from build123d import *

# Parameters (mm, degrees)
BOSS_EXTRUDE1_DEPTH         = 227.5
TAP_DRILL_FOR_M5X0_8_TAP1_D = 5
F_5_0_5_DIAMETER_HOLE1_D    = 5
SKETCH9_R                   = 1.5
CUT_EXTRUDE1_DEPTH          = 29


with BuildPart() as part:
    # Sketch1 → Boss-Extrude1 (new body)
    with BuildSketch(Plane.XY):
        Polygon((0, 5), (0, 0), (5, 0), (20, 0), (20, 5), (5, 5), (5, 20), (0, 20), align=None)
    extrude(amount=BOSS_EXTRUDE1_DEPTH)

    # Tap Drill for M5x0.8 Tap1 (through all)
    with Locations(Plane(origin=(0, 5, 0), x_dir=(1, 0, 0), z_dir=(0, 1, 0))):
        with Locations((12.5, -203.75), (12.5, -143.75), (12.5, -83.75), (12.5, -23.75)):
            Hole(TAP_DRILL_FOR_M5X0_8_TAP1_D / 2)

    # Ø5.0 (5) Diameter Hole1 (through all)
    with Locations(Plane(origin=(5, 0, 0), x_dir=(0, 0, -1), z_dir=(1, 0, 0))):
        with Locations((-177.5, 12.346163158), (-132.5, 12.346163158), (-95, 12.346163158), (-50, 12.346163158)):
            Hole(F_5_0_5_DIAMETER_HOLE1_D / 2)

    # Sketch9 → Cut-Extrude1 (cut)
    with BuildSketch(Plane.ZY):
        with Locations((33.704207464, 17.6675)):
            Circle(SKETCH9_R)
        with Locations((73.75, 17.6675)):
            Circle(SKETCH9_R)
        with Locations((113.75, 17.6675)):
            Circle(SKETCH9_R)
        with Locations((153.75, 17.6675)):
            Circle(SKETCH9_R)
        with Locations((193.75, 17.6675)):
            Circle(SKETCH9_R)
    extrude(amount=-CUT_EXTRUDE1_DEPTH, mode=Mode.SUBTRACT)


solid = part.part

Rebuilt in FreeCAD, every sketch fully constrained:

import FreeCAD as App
import Part
import Sketcher

doc = App.newDocument("Part")
body = doc.addObject("PartDesign::Body", "Body")

sketch1 = body.newObject("Sketcher::SketchObject", "Sketch")
sketch1.AttachmentSupport = (doc.getObject("XY_Plane"), [""])
sketch1.MapMode = "FlatFace"
sketch1.addGeometry(Part.LineSegment(App.Vector(0, 0, 0), App.Vector(20, 0, 0)), False)
sketch1.addGeometry(Part.LineSegment(App.Vector(20, 0, 0), App.Vector(20, 5, 0)), False)
sketch1.addGeometry(Part.LineSegment(App.Vector(20, 5, 0), App.Vector(5, 5, 0)), False)
sketch1.addGeometry(Part.LineSegment(App.Vector(5, 5, 0), App.Vector(5, 20, 0)), False)
sketch1.addGeometry(Part.LineSegment(App.Vector(5, 20, 0), App.Vector(0, 20, 0)), False)
sketch1.addGeometry(Part.LineSegment(App.Vector(0, 20, 0), App.Vector(0, 0, 0)), False)
sketch1.addConstraint(Sketcher.Constraint("Coincident", 0, 2, 1, 1))
sketch1.addConstraint(Sketcher.Constraint("Coincident", 1, 2, 2, 1))
sketch1.addConstraint(Sketcher.Constraint("Coincident", 2, 2, 3, 1))
sketch1.addConstraint(Sketcher.Constraint("Coincident", 3, 2, 4, 1))
sketch1.addConstraint(Sketcher.Constraint("Coincident", 4, 2, 5, 1))
sketch1.addConstraint(Sketcher.Constraint("Coincident", 5, 2, 0, 1))
sketch1.addConstraint(Sketcher.Constraint("Horizontal", 0))
sketch1.addConstraint(Sketcher.Constraint("Vertical", 1))
sketch1.addConstraint(Sketcher.Constraint("Horizontal", 2))
sketch1.addConstraint(Sketcher.Constraint("Vertical", 3))
sketch1.addConstraint(Sketcher.Constraint("Horizontal", 4))
sketch1.addConstraint(Sketcher.Constraint("Vertical", 5))
sketch1.addConstraint(Sketcher.Constraint("Coincident", 5, 2, -1, 1))
sketch1.addConstraint(Sketcher.Constraint("Equal", 4, 1))
sketch1.addConstraint(Sketcher.Constraint("Equal", 2, 3))
sketch1.addConstraint(Sketcher.Constraint("DistanceX", 0, 1, 0, 2, 20.0))
sketch1.addConstraint(Sketcher.Constraint("DistanceX", 2, 2, 2, 1, 15.0))
pad1 = body.newObject("PartDesign::Pad", "Pad")
pad1.Profile = sketch1
pad1.Length = 227.5

sketch2 = body.newObject("Sketcher::SketchObject", "Sketch001")
sketch2.AttachmentSupport = (doc.getObject("XZ_Plane"), [""])
sketch2.MapMode = "FlatFace"
sketch2.AttachmentOffset = App.Placement(App.Vector(0, 0, -5), App.Rotation())
sketch2.addGeometry(Part.Circle(App.Vector(12.5, 203.8, 0), App.Vector(0, 0, 1), 2.5), False)
sketch2.addGeometry(Part.Circle(App.Vector(12.5, 143.8, 0), App.Vector(0, 0, 1), 2.5), False)
sketch2.addGeometry(Part.Circle(App.Vector(12.5, 83.8, 0), App.Vector(0, 0, 1), 2.5), False)
sketch2.addGeometry(Part.Circle(App.Vector(12.5, 23.8, 0), App.Vector(0, 0, 1), 2.5), False)
sketch2.addConstraint(Sketcher.Constraint("Equal", 0, 1))
sketch2.addConstraint(Sketcher.Constraint("Equal", 1, 2))
sketch2.addConstraint(Sketcher.Constraint("Equal", 2, 3))
sketch2.addConstraint(Sketcher.Constraint("Vertical", 0, 3, 1, 3))
sketch2.addConstraint(Sketcher.Constraint("Vertical", 1, 3, 2, 3))
sketch2.addConstraint(Sketcher.Constraint("Vertical", 2, 3, 3, 3))
sketch2.addConstraint(Sketcher.Constraint("Diameter", 0, 5.0))
sketch2.addConstraint(Sketcher.Constraint("DistanceY", 1, 3, 0, 3, 60.0))
sketch2.addConstraint(Sketcher.Constraint("DistanceY", 2, 3, 1, 3, 60.0))
sketch2.addConstraint(Sketcher.Constraint("DistanceY", 3, 3, 2, 3, 60.0))
sketch2.addConstraint(Sketcher.Constraint("DistanceX", -1, 1, 0, 3, 12.5))
sketch2.addConstraint(Sketcher.Constraint("DistanceY", -1, 1, 0, 3, 203.75))
doc.recompute()
hole = body.newObject("PartDesign::Hole", "Hole")
hole.Profile = sketch2
hole.ThreadType = "None"
hole.Diameter = 5
hole.DepthType = "ThroughAll"
hole.Reversed = True

sketch3 = body.newObject("Sketcher::SketchObject", "Sketch002")
sketch3.AttachmentSupport = (doc.getObject("YZ_Plane"), [""])
sketch3.MapMode = "FlatFace"
sketch3.AttachmentOffset = App.Placement(App.Vector(0, 0, 5), App.Rotation())
sketch3.addGeometry(Part.Circle(App.Vector(12.3, 177.5, 0), App.Vector(0, 0, 1), 2.5), False)
sketch3.addGeometry(Part.Circle(App.Vector(12.3, 132.5, 0), App.Vector(0, 0, 1), 2.5), False)
sketch3.addGeometry(Part.Circle(App.Vector(12.3, 95, 0), App.Vector(0, 0, 1), 2.5), False)
sketch3.addGeometry(Part.Circle(App.Vector(12.3, 50, 0), App.Vector(0, 0, 1), 2.5), False)
sketch3.addConstraint(Sketcher.Constraint("Equal", 0, 1))
sketch3.addConstraint(Sketcher.Constraint("Equal", 1, 2))
sketch3.addConstraint(Sketcher.Constraint("Equal", 2, 3))
sketch3.addConstraint(Sketcher.Constraint("Vertical", 0, 3, 1, 3))
sketch3.addConstraint(Sketcher.Constraint("Vertical", 1, 3, 2, 3))
sketch3.addConstraint(Sketcher.Constraint("Vertical", 2, 3, 3, 3))
sketch3.addConstraint(Sketcher.Constraint("Diameter", 0, 5.0))
sketch3.addConstraint(Sketcher.Constraint("DistanceY", -1, 1, 2, 3, 95.0))
sketch3.addConstraint(Sketcher.Constraint("DistanceY", -1, 1, 3, 3, 50.0))
sketch3.addConstraint(Sketcher.Constraint("DistanceY", 1, 3, 0, 3, 45.0))
sketch3.addConstraint(Sketcher.Constraint("DistanceY", -1, 1, 0, 3, 177.5))
sketch3.addConstraint(Sketcher.Constraint("DistanceX", -1, 1, 0, 3, 12.346163))
doc.recompute()
hole2 = body.newObject("PartDesign::Hole", "Hole001")
hole2.Profile = sketch3
hole2.ThreadType = "None"
hole2.Diameter = 5
hole2.DepthType = "ThroughAll"

sketch4 = body.newObject("Sketcher::SketchObject", "Sketch003")
sketch4.AttachmentSupport = (doc.getObject("YZ_Plane"), [""])
sketch4.MapMode = "FlatFace"
sketch4.addGeometry(Part.Circle(App.Vector(17.7, 33.7, 0), App.Vector(0, 0, 1), 1.5), False)
sketch4.addGeometry(Part.Circle(App.Vector(17.7, 73.8, 0), App.Vector(0, 0, 1), 1.5), False)
sketch4.addGeometry(Part.Circle(App.Vector(17.7, 113.8, 0), App.Vector(0, 0, 1), 1.5), False)
sketch4.addGeometry(Part.Circle(App.Vector(17.7, 153.8, 0), App.Vector(0, 0, 1), 1.5), False)
sketch4.addGeometry(Part.Circle(App.Vector(17.7, 193.8, 0), App.Vector(0, 0, 1), 1.5), False)
sketch4.addConstraint(Sketcher.Constraint("Equal", 0, 1))
sketch4.addConstraint(Sketcher.Constraint("Equal", 1, 2))
sketch4.addConstraint(Sketcher.Constraint("Equal", 2, 3))
sketch4.addConstraint(Sketcher.Constraint("Equal", 3, 4))
sketch4.addConstraint(Sketcher.Constraint("Vertical", 0, 3, 1, 3))
sketch4.addConstraint(Sketcher.Constraint("Vertical", 1, 3, 2, 3))
sketch4.addConstraint(Sketcher.Constraint("Vertical", 2, 3, 3, 3))
sketch4.addConstraint(Sketcher.Constraint("Vertical", 3, 3, 4, 3))
sketch4.addConstraint(Sketcher.Constraint("Diameter", 0, 3.0))
sketch4.addConstraint(Sketcher.Constraint("DistanceY", 1, 3, 2, 3, 40.0))
sketch4.addConstraint(Sketcher.Constraint("DistanceY", 2, 3, 3, 3, 40.0))
sketch4.addConstraint(Sketcher.Constraint("DistanceY", 3, 3, 4, 3, 40.0))
sketch4.addConstraint(Sketcher.Constraint("DistanceY", -1, 1, 1, 3, 73.75))
sketch4.addConstraint(Sketcher.Constraint("DistanceX", -1, 1, 0, 3, 17.6675))
sketch4.addConstraint(Sketcher.Constraint("DistanceY", -1, 1, 0, 3, 33.704207))
pocket1 = body.newObject("PartDesign::Pocket", "Pocket")
pocket1.Profile = sketch4
pocket1.Length = 29
pocket1.Reversed = True

doc.recompute()
